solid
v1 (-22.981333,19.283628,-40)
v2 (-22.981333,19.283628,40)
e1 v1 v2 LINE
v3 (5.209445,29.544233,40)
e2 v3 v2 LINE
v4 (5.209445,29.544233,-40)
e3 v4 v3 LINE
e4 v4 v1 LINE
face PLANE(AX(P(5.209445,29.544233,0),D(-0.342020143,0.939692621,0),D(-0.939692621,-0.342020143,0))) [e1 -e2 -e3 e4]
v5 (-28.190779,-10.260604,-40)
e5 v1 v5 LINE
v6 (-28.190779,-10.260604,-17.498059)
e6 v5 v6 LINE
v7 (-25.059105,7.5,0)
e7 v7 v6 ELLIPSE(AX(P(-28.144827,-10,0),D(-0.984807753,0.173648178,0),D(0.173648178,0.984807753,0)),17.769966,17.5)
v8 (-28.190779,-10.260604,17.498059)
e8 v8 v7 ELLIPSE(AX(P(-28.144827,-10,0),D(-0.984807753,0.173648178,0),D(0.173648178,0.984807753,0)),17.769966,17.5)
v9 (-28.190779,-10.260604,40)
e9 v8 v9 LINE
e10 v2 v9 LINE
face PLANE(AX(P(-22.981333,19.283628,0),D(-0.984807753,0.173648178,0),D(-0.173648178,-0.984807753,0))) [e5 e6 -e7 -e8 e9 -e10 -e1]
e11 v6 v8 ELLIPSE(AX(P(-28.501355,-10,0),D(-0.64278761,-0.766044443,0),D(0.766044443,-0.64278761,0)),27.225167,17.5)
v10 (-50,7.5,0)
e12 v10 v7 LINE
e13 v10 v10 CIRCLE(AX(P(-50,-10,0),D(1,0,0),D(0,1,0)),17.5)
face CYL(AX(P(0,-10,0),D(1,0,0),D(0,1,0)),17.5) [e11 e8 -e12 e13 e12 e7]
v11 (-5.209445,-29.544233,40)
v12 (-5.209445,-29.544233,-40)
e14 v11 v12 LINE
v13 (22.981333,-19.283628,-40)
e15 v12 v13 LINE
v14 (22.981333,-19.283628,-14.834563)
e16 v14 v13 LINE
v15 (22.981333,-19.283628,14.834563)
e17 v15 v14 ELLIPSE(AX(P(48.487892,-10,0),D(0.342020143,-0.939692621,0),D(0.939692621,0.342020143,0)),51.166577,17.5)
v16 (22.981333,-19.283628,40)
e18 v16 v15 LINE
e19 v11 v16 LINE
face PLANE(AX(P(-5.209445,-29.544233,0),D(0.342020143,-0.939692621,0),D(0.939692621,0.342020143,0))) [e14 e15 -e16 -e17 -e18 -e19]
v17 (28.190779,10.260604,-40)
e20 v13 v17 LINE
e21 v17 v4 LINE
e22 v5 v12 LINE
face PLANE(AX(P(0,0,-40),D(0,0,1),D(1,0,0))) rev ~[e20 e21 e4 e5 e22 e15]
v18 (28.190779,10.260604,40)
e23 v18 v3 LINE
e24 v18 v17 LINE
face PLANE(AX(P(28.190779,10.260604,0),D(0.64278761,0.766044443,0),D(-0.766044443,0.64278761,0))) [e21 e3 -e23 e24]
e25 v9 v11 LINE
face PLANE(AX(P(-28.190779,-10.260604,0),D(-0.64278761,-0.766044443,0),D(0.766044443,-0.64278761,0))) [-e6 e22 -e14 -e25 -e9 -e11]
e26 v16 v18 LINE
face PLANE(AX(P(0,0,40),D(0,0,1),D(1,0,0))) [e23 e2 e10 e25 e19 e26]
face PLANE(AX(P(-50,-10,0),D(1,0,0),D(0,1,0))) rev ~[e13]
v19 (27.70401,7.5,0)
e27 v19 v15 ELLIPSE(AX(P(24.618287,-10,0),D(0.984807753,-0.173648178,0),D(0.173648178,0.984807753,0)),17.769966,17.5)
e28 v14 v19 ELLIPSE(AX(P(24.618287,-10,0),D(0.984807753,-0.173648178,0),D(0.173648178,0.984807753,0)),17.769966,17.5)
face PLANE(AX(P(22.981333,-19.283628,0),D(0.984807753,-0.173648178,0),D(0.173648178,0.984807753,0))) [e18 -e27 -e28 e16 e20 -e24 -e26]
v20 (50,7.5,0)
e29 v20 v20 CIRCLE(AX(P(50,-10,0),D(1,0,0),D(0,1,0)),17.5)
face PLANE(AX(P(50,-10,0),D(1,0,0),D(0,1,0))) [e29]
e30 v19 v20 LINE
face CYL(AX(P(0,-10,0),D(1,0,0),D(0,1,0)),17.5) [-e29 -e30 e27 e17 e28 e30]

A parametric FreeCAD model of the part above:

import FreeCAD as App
import Part
import Sketcher

V = App.Vector
Q = App.Units.Quantity

doc = App.newDocument("Part")
body = doc.addObject("PartDesign::Body", "Body")

sketch1 = doc.addObject("Sketcher::SketchObject", "Sketch")
body.addObject(sketch1)
sketch1.AttachmentSupport = (doc.XY_Plane, [""])
sketch1.MapMode = "FlatFace"
sketch1.addGeometry([
    Part.LineSegment(V(28, 10, 0), V(5, 30, 0)),
    Part.LineSegment(V(5, 30, 0), V(-23, 19, 0)),
    Part.LineSegment(V(-23, 19, 0), V(-28, -10, 0)),
    Part.LineSegment(V(-28, -10, 0), V(-5, -30, 0)),
    Part.LineSegment(V(-5, -30, 0), V(23, -19, 0)),
    Part.LineSegment(V(23, -19, 0), V(28, 10, 0)),
], False)
sketch1.addConstraint([
    Sketcher.Constraint("Coincident", 0, 2, 1, 1),
    Sketcher.Constraint("Coincident", 1, 2, 2, 1),
    Sketcher.Constraint("Coincident", 2, 2, 3, 1),
    Sketcher.Constraint("Coincident", 3, 2, 4, 1),
    Sketcher.Constraint("Coincident", 4, 2, 5, 1),
    Sketcher.Constraint("Coincident", 5, 2, 0, 1),
    Sketcher.Constraint("Symmetric", 0, 2, 3, 2, -1, 1),
    Sketcher.Constraint("Symmetric", 1, 2, 4, 2, -1, 1),
    Sketcher.Constraint("Symmetric", 2, 2, 5, 2, -1, 1),
    Sketcher.Constraint("Equal", 0, 1),
    Sketcher.Constraint("Equal", 1, 2),
    Sketcher.Constraint("Angle", 0, Q("140 deg")),
    Sketcher.Constraint("Angle", 1, Q("-160 deg")),
    Sketcher.Constraint("Angle", 2, Q("-100 deg")),
    Sketcher.Constraint("Distance", 0, Q("30 mm")),
])
pad1 = doc.addObject("PartDesign::Pad", "Pad")
body.addObject(pad1)
pad1.Profile = sketch1
pad1.Length = 80
pad1.Midplane = True

sketch2 = doc.addObject("Sketcher::SketchObject", "Sketch001")
body.addObject(sketch2)
sketch2.AttachmentSupport = (doc.YZ_Plane, [""])
sketch2.MapMode = "FlatFace"
sketch2.addGeometry(Part.Circle(V(-10, 0, 0), V(0, 0, 1), 18), False)
sketch2.addConstraint([
    Sketcher.Constraint("PointOnObject", 0, 3, -1),
    Sketcher.Constraint("Diameter", 0, Q("35 mm")),
    Sketcher.Constraint("DistanceX", 0, 3, -1, 1, Q("10 mm")),
])
pad2 = doc.addObject("PartDesign::Pad", "Pad001")
body.addObject(pad2)
pad2.Profile = sketch2
pad2.Length = 100
pad2.Midplane = True

doc.recompute()
